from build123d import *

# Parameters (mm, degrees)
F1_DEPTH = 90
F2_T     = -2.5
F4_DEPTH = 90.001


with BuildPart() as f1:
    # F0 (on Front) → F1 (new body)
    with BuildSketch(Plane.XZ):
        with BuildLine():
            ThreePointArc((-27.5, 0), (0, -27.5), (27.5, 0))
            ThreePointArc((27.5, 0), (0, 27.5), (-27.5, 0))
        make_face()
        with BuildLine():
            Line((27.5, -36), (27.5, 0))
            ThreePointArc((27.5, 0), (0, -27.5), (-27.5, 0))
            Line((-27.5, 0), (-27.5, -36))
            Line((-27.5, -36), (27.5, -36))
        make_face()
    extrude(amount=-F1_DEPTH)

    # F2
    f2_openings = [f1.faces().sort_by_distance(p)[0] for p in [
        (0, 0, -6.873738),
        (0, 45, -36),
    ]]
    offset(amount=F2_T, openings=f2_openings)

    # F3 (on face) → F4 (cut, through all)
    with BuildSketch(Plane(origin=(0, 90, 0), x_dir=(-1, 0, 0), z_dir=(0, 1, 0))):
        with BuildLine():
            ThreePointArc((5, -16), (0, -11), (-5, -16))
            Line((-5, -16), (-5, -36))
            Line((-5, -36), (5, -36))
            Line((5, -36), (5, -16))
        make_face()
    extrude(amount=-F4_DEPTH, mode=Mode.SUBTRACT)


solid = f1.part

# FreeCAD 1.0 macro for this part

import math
import FreeCAD as App
import Part
import Sketcher

V = App.Vector
Q = App.Units.Quantity


def faces_at(feature, points):
    """Names of the faces that lie closest to the given points."""
    faces = feature.Shape.Faces
    near = lambda p: min(range(len(faces)), key=lambda i: faces[i].distToShape(Part.Vertex(*p))[0])
    return sorted({f"Face{near(p) + 1}" for p in points})

doc = App.newDocument("Part")
body = doc.addObject("PartDesign::Body", "Body")

# Sketch on XZ plane
sketch1 = doc.addObject("Sketcher::SketchObject", "Sketch")
body.addObject(sketch1)
sketch1.AttachmentSupport = (doc.XZ_Plane, [""])
sketch1.MapMode = "FlatFace"
sketch1.addGeometry([
    Part.ArcOfCircle(Part.Circle(V(0, 0, 0), V(0, 0, 1), 28), math.radians(0), math.radians(180)),
    Part.LineSegment(V(-28, 0, 0), V(-28, -36, 0)),
    Part.LineSegment(V(-28, -36, 0), V(28, -36, 0)),
    Part.LineSegment(V(28, -36, 0), V(28, 0, 0)),
], False)
sketch1.addConstraint([
    Sketcher.Constraint("Tangent", 0, 2, 1, 1),
    Sketcher.Constraint("Coincident", 1, 2, 2, 1),
    Sketcher.Constraint("Coincident", 2, 2, 3, 1),
    Sketcher.Constraint("Tangent", 3, 2, 0, 1),
    Sketcher.Constraint("Vertical", 1),
    Sketcher.Constraint("Horizontal", 2),
    Sketcher.Constraint("Vertical", 3),
    Sketcher.Constraint("Coincident", 0, 3, -1, 1),
    Sketcher.Constraint("Radius", 0, Q("27.5 mm")),
    Sketcher.Constraint("DistanceY", 1, 2, 1, 1, Q("36 mm")),
])
pad1 = doc.addObject("PartDesign::Pad", "Pad")
body.addObject(pad1)
pad1.Profile = sketch1
pad1.Length = 90
pad1.Reversed = True
doc.recompute()

thickness = doc.addObject("PartDesign::Thickness", "Thickness")
body.addObject(thickness)
thickness.Base = (pad1, faces_at(pad1, [(0, 0, -4.25), (0, 45, -36)]))
thickness.Value = 2.5
thickness.Reversed = True
thickness.Join = "Arc"

# Sketch on XZ plane
sketch2 = doc.addObject("Sketcher::SketchObject", "Sketch001")
body.addObject(sketch2)
sketch2.AttachmentSupport = (doc.XZ_Plane, [""])
sketch2.MapMode = "FlatFace"
sketch2.AttachmentOffset = App.Placement(V(0, 0, -90), App.Rotation())
sketch2.addGeometry([
    Part.ArcOfCircle(Part.Circle(V(0, -16, 0), V(0, 0, 1), 5), math.radians(0), math.radians(180)),
    Part.LineSegment(V(5, -16, 0), V(5, -36, 0)),
    Part.LineSegment(V(5, -36, 0), V(-5, -36, 0)),
    Part.LineSegment(V(-5, -36, 0), V(-5, -16, 0)),
], False)
sketch2.addConstraint([
    Sketcher.Constraint("Tangent", 0, 1, 1, 1),
    Sketcher.Constraint("Coincident", 1, 2, 2, 1),
    Sketcher.Constraint("Coincident", 2, 2, 3, 1),
    Sketcher.Constraint("Tangent", 3, 2, 0, 2),
    Sketcher.Constraint("Vertical", 1),
    Sketcher.Constraint("Horizontal", 2),
    Sketcher.Constraint("Vertical", 3),
    Sketcher.Constraint("PointOnObject", 0, 3, -2),
    Sketcher.Constraint("Radius", 0, Q("5 mm")),
    Sketcher.Constraint("DistanceY", 1, 2, 1, 1, Q("20 mm")),
    Sketcher.Constraint("DistanceY", 0, 3, -1, 1, Q("16 mm")),
])
pocket1 = doc.addObject("PartDesign::Pocket", "Pocket")
body.addObject(pocket1)
pocket1.Profile = sketch2
pocket1.Type = "ThroughAll"
pocket1.Reversed = True

doc.recompute()
